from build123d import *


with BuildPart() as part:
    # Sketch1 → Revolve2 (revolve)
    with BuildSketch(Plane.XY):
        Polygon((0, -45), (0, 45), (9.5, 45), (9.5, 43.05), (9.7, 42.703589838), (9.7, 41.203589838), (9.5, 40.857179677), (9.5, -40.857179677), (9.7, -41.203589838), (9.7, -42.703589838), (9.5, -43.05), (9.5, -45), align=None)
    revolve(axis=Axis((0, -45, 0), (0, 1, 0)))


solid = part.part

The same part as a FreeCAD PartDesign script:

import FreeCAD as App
import Part
import Sketcher

V = App.Vector
Q = App.Units.Quantity


def add_polygon(sketch, points):
    """Adds a closed chain of lines whose ends are joined by coincident constraints."""
    first, n = sketch.GeometryCount, len(points)
    for a, b in zip(points, points[1:] + points[:1]):
        sketch.addGeometry(Part.LineSegment(App.Vector(*a, 0), App.Vector(*b, 0)), False)
    for i in range(n):
        sketch.addConstraint(Sketcher.Constraint("Coincident", first + i, 2, first + (i + 1) % n, 1))

doc = App.newDocument("Part")
params = doc.addObject("Spreadsheet::Sheet", "Params")
for row, (alias, value) in enumerate([
    ("sketch1_height", "90 mm"),
    ("sketch1_width", "9.5 mm"),
    ("sketch1_height2", "1.5 mm"),
    ("sketch1_length", "0.4 mm"),
    ("sketch1_height3", "1.95 mm"),
    ("revolution_angle", "360 deg"),
], start=1):
    params.set(f"A{row}", alias)
    params.set(f"B{row}", "=" + value)
    params.setAlias(f"B{row}", alias)

body = doc.addObject("PartDesign::Body", "Body")

sketch1 = body.newObject("Sketcher::SketchObject", "Sketch")
sketch1.AttachmentSupport = (doc.getObject("XY_Plane"), [""])
sketch1.MapMode = "FlatFace"
add_polygon(sketch1, [(0, 45), (0, -45), (9.5, -45), (9.5, -43.05), (9.7, -42.7), (9.7, -41.2), (9.5, -40.86), (9.5, 40.86), (9.7, 41.2), (9.7, 42.7), (9.5, 43.05), (9.5, 45)])
sketch1.addConstraint(Sketcher.Constraint("Vertical", 0))
sketch1.addConstraint(Sketcher.Constraint("Horizontal", 1))
sketch1.addConstraint(Sketcher.Constraint("Vertical", 2))
sketch1.addConstraint(Sketcher.Constraint("Vertical", 4))
sketch1.addConstraint(Sketcher.Constraint("Vertical", 6))
sketch1.addConstraint(Sketcher.Constraint("Vertical", 8))
sketch1.addConstraint(Sketcher.Constraint("Vertical", 10))
sketch1.addConstraint(Sketcher.Constraint("Horizontal", 11))
sketch1.addConstraint(Sketcher.Constraint("Symmetric", 0, 2, 11, 2, -1, 1))
sketch1.addConstraint(Sketcher.Constraint("Symmetric", 4, 2, 7, 2, -1))
sketch1.addConstraint(Sketcher.Constraint("Symmetric", 2, 2, 9, 2, -1))
sketch1.addConstraint(Sketcher.Constraint("Parallel", 3, 7))
sketch1.addConstraint(Sketcher.Constraint("Parallel", 5, 9))
sketch1.addConstraint(Sketcher.Constraint("Vertical", 2, 2, 5, 2))
sketch1.addConstraint(Sketcher.Constraint("Equal", 4, 8))
sketch1.addConstraint(Sketcher.Constraint("DistanceY", 0, 2, 0, 1, 90.0))
sketch1.addConstraint(Sketcher.Constraint("Angle", 3, Q("60 deg")))
sketch1.addConstraint(Sketcher.Constraint("DistanceX", 1, 1, 1, 2, 9.5))
sketch1.addConstraint(Sketcher.Constraint("DistanceY", 4, 1, 4, 2, 1.5))
sketch1.addConstraint(Sketcher.Constraint("Distance", 3, 0.4))
sketch1.addConstraint(Sketcher.Constraint("DistanceY", 2, 1, 2, 2, 1.95))
sketch1.setExpression("Constraints[27]", "Params.sketch1_height")
sketch1.setExpression("Constraints[29]", "Params.sketch1_width")
sketch1.setExpression("Constraints[30]", "Params.sketch1_height2")
sketch1.setExpression("Constraints[31]", "Params.sketch1_length")
sketch1.setExpression("Constraints[32]", "Params.sketch1_height3")
revolution = body.newObject("PartDesign::Revolution", "Revolution")
revolution.Profile = sketch1
revolution.ReferenceAxis = (sketch1, ["V_Axis"])
revolution.setExpression("Angle", "Params.revolution_angle")

doc.recompute()
